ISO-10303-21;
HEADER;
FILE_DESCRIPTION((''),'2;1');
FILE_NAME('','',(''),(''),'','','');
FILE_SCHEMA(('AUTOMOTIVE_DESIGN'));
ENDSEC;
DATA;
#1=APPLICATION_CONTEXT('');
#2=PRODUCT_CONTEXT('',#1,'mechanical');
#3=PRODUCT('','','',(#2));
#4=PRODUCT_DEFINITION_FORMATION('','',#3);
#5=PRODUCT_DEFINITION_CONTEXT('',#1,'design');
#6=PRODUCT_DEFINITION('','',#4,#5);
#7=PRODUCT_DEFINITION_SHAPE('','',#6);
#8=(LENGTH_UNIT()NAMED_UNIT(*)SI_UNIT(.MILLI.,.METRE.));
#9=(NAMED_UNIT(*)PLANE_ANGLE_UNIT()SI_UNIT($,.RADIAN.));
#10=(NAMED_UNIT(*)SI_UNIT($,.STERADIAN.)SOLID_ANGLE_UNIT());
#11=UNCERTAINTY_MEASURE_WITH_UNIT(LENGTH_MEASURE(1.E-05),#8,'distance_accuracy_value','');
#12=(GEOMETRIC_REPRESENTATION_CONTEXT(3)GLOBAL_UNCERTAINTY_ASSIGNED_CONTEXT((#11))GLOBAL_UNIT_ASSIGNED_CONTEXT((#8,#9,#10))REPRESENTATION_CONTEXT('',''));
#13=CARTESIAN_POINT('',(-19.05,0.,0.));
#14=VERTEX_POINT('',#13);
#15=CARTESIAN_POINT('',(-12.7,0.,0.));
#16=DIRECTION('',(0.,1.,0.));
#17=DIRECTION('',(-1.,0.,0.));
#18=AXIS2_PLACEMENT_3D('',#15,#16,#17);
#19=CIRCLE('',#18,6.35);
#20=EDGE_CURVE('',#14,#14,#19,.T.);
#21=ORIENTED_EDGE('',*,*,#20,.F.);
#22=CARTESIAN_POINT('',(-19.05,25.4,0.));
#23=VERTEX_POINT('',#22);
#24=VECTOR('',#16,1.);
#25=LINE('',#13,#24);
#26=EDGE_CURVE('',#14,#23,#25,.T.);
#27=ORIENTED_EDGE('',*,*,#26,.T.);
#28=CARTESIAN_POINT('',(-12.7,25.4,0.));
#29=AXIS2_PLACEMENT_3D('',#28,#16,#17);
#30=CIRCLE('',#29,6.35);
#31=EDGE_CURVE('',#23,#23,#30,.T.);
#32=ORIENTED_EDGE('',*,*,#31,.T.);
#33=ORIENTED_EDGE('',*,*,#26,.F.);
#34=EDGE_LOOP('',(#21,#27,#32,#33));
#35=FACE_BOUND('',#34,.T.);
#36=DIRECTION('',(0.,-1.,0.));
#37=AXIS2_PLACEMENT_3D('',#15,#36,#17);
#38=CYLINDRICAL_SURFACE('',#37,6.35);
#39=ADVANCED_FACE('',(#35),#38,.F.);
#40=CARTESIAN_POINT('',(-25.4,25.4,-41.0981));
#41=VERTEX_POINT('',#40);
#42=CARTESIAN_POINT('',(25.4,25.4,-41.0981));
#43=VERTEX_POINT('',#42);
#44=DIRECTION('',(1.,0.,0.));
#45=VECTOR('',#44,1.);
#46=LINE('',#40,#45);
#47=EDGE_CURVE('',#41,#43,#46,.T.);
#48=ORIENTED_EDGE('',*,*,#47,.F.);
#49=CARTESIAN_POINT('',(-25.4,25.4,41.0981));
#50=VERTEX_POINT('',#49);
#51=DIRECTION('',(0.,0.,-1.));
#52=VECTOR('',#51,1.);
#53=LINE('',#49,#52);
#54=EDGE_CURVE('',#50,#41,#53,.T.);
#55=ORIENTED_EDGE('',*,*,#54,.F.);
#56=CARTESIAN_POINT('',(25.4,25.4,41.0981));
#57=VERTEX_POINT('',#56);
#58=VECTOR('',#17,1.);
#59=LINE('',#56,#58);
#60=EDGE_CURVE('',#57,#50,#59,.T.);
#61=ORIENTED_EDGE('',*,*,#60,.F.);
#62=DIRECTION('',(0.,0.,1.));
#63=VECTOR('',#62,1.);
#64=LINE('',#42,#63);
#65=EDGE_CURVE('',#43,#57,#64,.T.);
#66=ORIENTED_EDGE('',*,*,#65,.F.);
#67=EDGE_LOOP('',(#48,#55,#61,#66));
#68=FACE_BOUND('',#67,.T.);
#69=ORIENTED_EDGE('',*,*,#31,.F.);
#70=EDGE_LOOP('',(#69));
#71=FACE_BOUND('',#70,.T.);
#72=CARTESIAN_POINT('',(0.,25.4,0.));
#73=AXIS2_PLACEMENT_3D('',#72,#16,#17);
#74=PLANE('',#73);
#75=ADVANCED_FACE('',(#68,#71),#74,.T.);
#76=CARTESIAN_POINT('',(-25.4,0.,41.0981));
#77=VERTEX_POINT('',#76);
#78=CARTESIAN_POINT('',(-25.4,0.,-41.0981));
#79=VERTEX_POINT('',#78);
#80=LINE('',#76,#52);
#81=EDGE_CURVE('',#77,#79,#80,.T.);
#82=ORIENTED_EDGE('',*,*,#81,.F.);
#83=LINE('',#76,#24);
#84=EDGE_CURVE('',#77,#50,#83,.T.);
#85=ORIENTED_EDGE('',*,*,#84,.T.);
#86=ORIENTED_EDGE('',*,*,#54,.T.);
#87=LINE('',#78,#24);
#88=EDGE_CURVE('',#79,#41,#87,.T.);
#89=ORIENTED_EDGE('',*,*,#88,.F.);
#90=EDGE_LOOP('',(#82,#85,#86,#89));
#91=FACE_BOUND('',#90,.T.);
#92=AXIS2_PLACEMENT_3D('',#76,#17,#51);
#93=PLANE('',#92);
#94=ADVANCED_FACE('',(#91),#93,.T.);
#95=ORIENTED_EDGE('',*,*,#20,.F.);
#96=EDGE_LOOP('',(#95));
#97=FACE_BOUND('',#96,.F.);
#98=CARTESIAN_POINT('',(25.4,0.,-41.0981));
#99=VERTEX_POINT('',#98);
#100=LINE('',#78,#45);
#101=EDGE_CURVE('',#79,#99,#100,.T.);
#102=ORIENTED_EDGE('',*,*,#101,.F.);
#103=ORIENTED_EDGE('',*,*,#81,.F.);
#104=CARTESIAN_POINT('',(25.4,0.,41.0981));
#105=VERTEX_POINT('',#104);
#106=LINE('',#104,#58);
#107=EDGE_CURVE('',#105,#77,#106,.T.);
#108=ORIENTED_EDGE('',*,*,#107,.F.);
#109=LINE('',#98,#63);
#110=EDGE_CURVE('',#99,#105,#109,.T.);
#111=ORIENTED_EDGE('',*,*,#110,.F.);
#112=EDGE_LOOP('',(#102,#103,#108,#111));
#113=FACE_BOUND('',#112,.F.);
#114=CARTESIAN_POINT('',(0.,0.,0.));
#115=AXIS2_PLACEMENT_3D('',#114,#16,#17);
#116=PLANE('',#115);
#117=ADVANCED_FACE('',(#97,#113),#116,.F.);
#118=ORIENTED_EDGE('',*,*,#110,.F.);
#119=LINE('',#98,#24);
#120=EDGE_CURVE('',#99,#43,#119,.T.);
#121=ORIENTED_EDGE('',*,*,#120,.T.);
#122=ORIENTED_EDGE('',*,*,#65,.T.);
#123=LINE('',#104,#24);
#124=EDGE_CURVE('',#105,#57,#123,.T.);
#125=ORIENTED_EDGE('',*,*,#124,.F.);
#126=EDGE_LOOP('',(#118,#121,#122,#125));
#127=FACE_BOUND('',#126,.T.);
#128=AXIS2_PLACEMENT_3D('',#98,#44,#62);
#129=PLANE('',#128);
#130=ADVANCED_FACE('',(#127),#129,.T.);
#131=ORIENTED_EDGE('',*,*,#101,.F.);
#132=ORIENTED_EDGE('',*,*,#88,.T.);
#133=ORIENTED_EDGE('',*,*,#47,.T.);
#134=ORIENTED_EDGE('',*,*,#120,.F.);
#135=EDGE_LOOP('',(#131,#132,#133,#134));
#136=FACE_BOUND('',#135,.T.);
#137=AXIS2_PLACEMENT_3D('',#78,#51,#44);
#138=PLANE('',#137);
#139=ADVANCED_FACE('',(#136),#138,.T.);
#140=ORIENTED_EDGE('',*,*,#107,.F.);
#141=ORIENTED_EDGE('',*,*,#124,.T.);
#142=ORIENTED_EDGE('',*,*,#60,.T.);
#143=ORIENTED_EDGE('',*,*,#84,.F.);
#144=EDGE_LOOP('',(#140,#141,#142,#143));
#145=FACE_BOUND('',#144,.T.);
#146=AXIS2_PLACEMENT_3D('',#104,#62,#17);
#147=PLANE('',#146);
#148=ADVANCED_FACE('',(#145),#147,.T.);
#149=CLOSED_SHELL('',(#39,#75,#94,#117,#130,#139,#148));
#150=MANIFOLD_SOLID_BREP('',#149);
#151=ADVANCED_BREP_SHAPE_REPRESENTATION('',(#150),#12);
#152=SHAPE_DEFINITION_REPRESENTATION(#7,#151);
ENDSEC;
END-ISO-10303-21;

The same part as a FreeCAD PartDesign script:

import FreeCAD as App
import Part
import Sketcher

V = App.Vector
Q = App.Units.Quantity

doc = App.newDocument("Part")
body = doc.addObject("PartDesign::Body", "Body")

# Sketch on XZ plane
sketch1 = body.newObject("Sketcher::SketchObject", "Sketch")
sketch1.AttachmentSupport = (doc.getObject("XZ_Plane"), [""])
sketch1.MapMode = "FlatFace"
sketch1.addGeometry(Part.LineSegment(V(-25.4, 41.0981, 0), V(25.4, 41.0981, 0)), False)
sketch1.addGeometry(Part.LineSegment(V(25.4, 41.0981, 0), V(25.4, -41.0981, 0)), False)
sketch1.addGeometry(Part.LineSegment(V(25.4, -41.0981, 0), V(-25.4, -41.0981, 0)), False)
sketch1.addGeometry(Part.LineSegment(V(-25.4, -41.0981, 0), V(-25.4, 41.0981, 0)), False)
sketch1.addGeometry(Part.Circle(V(-12.7, 0, 0), V(0, 0, 1), 6.35), False)
sketch1.addConstraint(Sketcher.Constraint("Coincident", 0, 2, 1, 1))
sketch1.addConstraint(Sketcher.Constraint("Coincident", 1, 2, 2, 1))
sketch1.addConstraint(Sketcher.Constraint("Coincident", 2, 2, 3, 1))
sketch1.addConstraint(Sketcher.Constraint("Coincident", 3, 2, 0, 1))
sketch1.addConstraint(Sketcher.Constraint("Horizontal", 0))
sketch1.addConstraint(Sketcher.Constraint("Vertical", 1))
sketch1.addConstraint(Sketcher.Constraint("Horizontal", 2))
sketch1.addConstraint(Sketcher.Constraint("Vertical", 3))
sketch1.addConstraint(Sketcher.Constraint("Symmetric", 0, 2, 2, 2, -1, 1))
sketch1.addConstraint(Sketcher.Constraint("PointOnObject", 4, 3, -1))
sketch1.addConstraint(Sketcher.Constraint("Diameter", 4, Q("0.5 in")))
sketch1.addConstraint(Sketcher.Constraint("DistanceX", 0, 1, 0, 2, Q("2 in")))
sketch1.addConstraint(Sketcher.Constraint("DistanceX", 4, 3, -1, 1, Q("0.5 in")))
sketch1.addConstraint(Sketcher.Constraint("DistanceY", 1, 2, 1, 1, 82.1962))
pad1 = body.newObject("PartDesign::Pad", "Pad")
pad1.Profile = sketch1
pad1.Length = Q("1 in")
pad1.Reversed = True

doc.recompute()
